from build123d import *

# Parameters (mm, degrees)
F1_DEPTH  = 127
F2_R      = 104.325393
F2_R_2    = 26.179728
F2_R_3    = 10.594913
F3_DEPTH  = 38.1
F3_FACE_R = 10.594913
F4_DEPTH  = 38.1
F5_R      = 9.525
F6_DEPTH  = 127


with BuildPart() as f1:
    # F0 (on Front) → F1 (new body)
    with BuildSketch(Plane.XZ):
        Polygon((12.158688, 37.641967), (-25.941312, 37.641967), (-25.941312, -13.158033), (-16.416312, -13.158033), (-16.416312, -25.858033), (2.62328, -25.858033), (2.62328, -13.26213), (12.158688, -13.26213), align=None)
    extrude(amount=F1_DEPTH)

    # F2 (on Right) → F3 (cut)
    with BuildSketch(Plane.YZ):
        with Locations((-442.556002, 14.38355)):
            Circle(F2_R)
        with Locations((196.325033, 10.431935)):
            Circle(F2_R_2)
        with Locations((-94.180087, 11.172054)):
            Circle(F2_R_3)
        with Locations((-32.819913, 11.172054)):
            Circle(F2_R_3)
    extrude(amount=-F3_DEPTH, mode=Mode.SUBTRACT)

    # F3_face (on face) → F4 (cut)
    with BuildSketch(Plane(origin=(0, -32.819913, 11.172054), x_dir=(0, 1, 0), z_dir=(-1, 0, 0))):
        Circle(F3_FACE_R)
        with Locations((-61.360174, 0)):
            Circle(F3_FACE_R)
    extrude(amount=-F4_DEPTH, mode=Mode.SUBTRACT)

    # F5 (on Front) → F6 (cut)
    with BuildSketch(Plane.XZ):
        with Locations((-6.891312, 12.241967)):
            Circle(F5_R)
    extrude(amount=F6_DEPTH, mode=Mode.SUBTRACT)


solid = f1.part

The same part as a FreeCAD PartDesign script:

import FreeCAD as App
import Part
import Sketcher

V = App.Vector
Q = App.Units.Quantity

doc = App.newDocument("Part")
body = doc.addObject("PartDesign::Body", "Body")

# Sketch on XZ plane
sketch1 = body.newObject("Sketcher::SketchObject", "Sketch")
sketch1.AttachmentSupport = (doc.getObject("XZ_Plane"), [""])
sketch1.MapMode = "FlatFace"
sketch1.addGeometry([
    Part.LineSegment(V(12, 38, 0), V(-26, 38, 0)),  # 0
    Part.LineSegment(V(-26, 38, 0), V(-26, -13, 0)),  # 1
    Part.LineSegment(V(-26, -13, 0), V(-16, -13, 0)),  # 2
    Part.LineSegment(V(-16, -13, 0), V(-16, -26, 0)),  # 3
    Part.LineSegment(V(-16, -26, 0), V(3, -26, 0)),  # 4
    Part.LineSegment(V(3, -26, 0), V(3, -13, 0)),  # 5
    Part.LineSegment(V(3, -13, 0), V(12, -13, 0)),  # 6
    Part.LineSegment(V(12, -13, 0), V(12, 38, 0)),  # 7
], False)
sketch1.addConstraint([
    Sketcher.Constraint("Coincident", 0, 2, 1, 1),
    Sketcher.Constraint("Coincident", 1, 2, 2, 1),
    Sketcher.Constraint("Coincident", 2, 2, 3, 1),
    Sketcher.Constraint("Coincident", 3, 2, 4, 1),
    Sketcher.Constraint("Coincident", 4, 2, 5, 1),
    Sketcher.Constraint("Coincident", 5, 2, 6, 1),
    Sketcher.Constraint("Coincident", 6, 2, 7, 1),
    Sketcher.Constraint("Coincident", 7, 2, 0, 1),
    Sketcher.Constraint("Horizontal", 0),
    Sketcher.Constraint("Vertical", 1),
    Sketcher.Constraint("Horizontal", 2),
    Sketcher.Constraint("Vertical", 3),
    Sketcher.Constraint("Horizontal", 4),
    Sketcher.Constraint("Vertical", 5),
    Sketcher.Constraint("Horizontal", 6),
    Sketcher.Constraint("Vertical", 7),
    Sketcher.Constraint("DistanceY", 1, 2, 1, 1, Q("2 in")),
    Sketcher.Constraint("DistanceX", 0, 2, 0, 1, Q("1.5 in")),
    Sketcher.Constraint("DistanceY", 3, 2, 3, 1, Q("0.5 in")),
    Sketcher.Constraint("DistanceX", 2, 1, 2, 2, Q("0.375 in")),
    Sketcher.Constraint("DistanceX", 4, 1, 4, 2, 19.039592),
    Sketcher.Constraint("DistanceY", 5, 1, 5, 2, 12.595903),
    Sketcher.Constraint("DistanceX", 0, 2, -1, 1, 25.941312),
    Sketcher.Constraint("DistanceY", 5, 2, -1, 1, 13.26213),
])
pad1 = body.newObject("PartDesign::Pad", "Pad")
pad1.Profile = sketch1
pad1.Length = Q("5 in")

# Sketch on YZ plane
sketch2 = body.newObject("Sketcher::SketchObject", "Sketch001")
sketch2.AttachmentSupport = (doc.getObject("YZ_Plane"), [""])
sketch2.MapMode = "FlatFace"
sketch2.addGeometry([
    Part.Circle(V(-443, 14, 0), V(0, 0, 1), 104),
    Part.Circle(V(196, 10, 0), V(0, 0, 1), 26),
    Part.Circle(V(-94, 11, 0), V(0, 0, 1), 11),
    Part.Circle(V(-33, 11, 0), V(0, 0, 1), 11),
], False)
sketch2.addConstraint([
    Sketcher.Constraint("Equal", 2, 3),
    Sketcher.Constraint("Horizontal", 2, 3, 3, 3),
    Sketcher.Constraint("Diameter", 0, 208.650786),
    Sketcher.Constraint("Diameter", 1, 52.359456),
    Sketcher.Constraint("Diameter", 2, 21.189826),
    Sketcher.Constraint("DistanceX", 0, 3, -1, 1, 442.556002),
    Sketcher.Constraint("DistanceY", -1, 1, 0, 3, 14.38355),
    Sketcher.Constraint("DistanceX", 2, 3, 1, 3, 290.50512),
    Sketcher.Constraint("DistanceY", 1, 3, 2, 3, 0.740119),
    Sketcher.Constraint("DistanceX", 0, 3, 3, 3, 409.736089),
    Sketcher.Constraint("DistanceX", -1, 1, 1, 3, 196.325033),
    Sketcher.Constraint("DistanceY", -1, 1, 1, 3, 10.431935),
])
pocket1 = body.newObject("PartDesign::Pocket", "Pocket")
pocket1.Profile = sketch2
pocket1.Length = Q("1.5 in")

# Sketch on YZ plane
sketch3 = body.newObject("Sketcher::SketchObject", "Sketch002")
sketch3.AttachmentSupport = (doc.getObject("YZ_Plane"), [""])
sketch3.MapMode = "FlatFace"
sketch3.addGeometry([
    Part.Circle(V(-33, 11, 0), V(0, 0, 1), 11),
    Part.Circle(V(-94, 11, 0), V(0, 0, 1), 11),
], False)
sketch3.addConstraint([
    Sketcher.Constraint("Equal", 0, 1),
    Sketcher.Constraint("Horizontal", 0, 3, 1, 3),
    Sketcher.Constraint("Diameter", 0, 21.189826),
    Sketcher.Constraint("DistanceX", 0, 3, -1, 1, 32.819913),
    Sketcher.Constraint("DistanceY", -1, 1, 0, 3, 11.172054),
    Sketcher.Constraint("DistanceX", 1, 3, -1, 1, 94.180087),
])
pocket2 = body.newObject("PartDesign::Pocket", "Pocket001")
pocket2.Profile = sketch3
pocket2.Length = Q("1.5 in")
pocket2.Reversed = True

# Sketch on XZ plane
sketch4 = body.newObject("Sketcher::SketchObject", "Sketch003")
sketch4.AttachmentSupport = (doc.getObject("XZ_Plane"), [""])
sketch4.MapMode = "FlatFace"
sketch4.addGeometry(Part.Circle(V(-7, 12, 0), V(0, 0, 1), 10), False)
sketch4.addConstraint([
    Sketcher.Constraint("Diameter", 0, Q("0.75 in")),
    Sketcher.Constraint("DistanceX", 0, 3, -1, 1, 6.891312),
    Sketcher.Constraint("DistanceY", -1, 1, 0, 3, 12.241967),
])
pocket3 = body.newObject("PartDesign::Pocket", "Pocket002")
pocket3.Profile = sketch4
pocket3.Length = Q("5 in")
pocket3.Reversed = True

doc.recompute()
